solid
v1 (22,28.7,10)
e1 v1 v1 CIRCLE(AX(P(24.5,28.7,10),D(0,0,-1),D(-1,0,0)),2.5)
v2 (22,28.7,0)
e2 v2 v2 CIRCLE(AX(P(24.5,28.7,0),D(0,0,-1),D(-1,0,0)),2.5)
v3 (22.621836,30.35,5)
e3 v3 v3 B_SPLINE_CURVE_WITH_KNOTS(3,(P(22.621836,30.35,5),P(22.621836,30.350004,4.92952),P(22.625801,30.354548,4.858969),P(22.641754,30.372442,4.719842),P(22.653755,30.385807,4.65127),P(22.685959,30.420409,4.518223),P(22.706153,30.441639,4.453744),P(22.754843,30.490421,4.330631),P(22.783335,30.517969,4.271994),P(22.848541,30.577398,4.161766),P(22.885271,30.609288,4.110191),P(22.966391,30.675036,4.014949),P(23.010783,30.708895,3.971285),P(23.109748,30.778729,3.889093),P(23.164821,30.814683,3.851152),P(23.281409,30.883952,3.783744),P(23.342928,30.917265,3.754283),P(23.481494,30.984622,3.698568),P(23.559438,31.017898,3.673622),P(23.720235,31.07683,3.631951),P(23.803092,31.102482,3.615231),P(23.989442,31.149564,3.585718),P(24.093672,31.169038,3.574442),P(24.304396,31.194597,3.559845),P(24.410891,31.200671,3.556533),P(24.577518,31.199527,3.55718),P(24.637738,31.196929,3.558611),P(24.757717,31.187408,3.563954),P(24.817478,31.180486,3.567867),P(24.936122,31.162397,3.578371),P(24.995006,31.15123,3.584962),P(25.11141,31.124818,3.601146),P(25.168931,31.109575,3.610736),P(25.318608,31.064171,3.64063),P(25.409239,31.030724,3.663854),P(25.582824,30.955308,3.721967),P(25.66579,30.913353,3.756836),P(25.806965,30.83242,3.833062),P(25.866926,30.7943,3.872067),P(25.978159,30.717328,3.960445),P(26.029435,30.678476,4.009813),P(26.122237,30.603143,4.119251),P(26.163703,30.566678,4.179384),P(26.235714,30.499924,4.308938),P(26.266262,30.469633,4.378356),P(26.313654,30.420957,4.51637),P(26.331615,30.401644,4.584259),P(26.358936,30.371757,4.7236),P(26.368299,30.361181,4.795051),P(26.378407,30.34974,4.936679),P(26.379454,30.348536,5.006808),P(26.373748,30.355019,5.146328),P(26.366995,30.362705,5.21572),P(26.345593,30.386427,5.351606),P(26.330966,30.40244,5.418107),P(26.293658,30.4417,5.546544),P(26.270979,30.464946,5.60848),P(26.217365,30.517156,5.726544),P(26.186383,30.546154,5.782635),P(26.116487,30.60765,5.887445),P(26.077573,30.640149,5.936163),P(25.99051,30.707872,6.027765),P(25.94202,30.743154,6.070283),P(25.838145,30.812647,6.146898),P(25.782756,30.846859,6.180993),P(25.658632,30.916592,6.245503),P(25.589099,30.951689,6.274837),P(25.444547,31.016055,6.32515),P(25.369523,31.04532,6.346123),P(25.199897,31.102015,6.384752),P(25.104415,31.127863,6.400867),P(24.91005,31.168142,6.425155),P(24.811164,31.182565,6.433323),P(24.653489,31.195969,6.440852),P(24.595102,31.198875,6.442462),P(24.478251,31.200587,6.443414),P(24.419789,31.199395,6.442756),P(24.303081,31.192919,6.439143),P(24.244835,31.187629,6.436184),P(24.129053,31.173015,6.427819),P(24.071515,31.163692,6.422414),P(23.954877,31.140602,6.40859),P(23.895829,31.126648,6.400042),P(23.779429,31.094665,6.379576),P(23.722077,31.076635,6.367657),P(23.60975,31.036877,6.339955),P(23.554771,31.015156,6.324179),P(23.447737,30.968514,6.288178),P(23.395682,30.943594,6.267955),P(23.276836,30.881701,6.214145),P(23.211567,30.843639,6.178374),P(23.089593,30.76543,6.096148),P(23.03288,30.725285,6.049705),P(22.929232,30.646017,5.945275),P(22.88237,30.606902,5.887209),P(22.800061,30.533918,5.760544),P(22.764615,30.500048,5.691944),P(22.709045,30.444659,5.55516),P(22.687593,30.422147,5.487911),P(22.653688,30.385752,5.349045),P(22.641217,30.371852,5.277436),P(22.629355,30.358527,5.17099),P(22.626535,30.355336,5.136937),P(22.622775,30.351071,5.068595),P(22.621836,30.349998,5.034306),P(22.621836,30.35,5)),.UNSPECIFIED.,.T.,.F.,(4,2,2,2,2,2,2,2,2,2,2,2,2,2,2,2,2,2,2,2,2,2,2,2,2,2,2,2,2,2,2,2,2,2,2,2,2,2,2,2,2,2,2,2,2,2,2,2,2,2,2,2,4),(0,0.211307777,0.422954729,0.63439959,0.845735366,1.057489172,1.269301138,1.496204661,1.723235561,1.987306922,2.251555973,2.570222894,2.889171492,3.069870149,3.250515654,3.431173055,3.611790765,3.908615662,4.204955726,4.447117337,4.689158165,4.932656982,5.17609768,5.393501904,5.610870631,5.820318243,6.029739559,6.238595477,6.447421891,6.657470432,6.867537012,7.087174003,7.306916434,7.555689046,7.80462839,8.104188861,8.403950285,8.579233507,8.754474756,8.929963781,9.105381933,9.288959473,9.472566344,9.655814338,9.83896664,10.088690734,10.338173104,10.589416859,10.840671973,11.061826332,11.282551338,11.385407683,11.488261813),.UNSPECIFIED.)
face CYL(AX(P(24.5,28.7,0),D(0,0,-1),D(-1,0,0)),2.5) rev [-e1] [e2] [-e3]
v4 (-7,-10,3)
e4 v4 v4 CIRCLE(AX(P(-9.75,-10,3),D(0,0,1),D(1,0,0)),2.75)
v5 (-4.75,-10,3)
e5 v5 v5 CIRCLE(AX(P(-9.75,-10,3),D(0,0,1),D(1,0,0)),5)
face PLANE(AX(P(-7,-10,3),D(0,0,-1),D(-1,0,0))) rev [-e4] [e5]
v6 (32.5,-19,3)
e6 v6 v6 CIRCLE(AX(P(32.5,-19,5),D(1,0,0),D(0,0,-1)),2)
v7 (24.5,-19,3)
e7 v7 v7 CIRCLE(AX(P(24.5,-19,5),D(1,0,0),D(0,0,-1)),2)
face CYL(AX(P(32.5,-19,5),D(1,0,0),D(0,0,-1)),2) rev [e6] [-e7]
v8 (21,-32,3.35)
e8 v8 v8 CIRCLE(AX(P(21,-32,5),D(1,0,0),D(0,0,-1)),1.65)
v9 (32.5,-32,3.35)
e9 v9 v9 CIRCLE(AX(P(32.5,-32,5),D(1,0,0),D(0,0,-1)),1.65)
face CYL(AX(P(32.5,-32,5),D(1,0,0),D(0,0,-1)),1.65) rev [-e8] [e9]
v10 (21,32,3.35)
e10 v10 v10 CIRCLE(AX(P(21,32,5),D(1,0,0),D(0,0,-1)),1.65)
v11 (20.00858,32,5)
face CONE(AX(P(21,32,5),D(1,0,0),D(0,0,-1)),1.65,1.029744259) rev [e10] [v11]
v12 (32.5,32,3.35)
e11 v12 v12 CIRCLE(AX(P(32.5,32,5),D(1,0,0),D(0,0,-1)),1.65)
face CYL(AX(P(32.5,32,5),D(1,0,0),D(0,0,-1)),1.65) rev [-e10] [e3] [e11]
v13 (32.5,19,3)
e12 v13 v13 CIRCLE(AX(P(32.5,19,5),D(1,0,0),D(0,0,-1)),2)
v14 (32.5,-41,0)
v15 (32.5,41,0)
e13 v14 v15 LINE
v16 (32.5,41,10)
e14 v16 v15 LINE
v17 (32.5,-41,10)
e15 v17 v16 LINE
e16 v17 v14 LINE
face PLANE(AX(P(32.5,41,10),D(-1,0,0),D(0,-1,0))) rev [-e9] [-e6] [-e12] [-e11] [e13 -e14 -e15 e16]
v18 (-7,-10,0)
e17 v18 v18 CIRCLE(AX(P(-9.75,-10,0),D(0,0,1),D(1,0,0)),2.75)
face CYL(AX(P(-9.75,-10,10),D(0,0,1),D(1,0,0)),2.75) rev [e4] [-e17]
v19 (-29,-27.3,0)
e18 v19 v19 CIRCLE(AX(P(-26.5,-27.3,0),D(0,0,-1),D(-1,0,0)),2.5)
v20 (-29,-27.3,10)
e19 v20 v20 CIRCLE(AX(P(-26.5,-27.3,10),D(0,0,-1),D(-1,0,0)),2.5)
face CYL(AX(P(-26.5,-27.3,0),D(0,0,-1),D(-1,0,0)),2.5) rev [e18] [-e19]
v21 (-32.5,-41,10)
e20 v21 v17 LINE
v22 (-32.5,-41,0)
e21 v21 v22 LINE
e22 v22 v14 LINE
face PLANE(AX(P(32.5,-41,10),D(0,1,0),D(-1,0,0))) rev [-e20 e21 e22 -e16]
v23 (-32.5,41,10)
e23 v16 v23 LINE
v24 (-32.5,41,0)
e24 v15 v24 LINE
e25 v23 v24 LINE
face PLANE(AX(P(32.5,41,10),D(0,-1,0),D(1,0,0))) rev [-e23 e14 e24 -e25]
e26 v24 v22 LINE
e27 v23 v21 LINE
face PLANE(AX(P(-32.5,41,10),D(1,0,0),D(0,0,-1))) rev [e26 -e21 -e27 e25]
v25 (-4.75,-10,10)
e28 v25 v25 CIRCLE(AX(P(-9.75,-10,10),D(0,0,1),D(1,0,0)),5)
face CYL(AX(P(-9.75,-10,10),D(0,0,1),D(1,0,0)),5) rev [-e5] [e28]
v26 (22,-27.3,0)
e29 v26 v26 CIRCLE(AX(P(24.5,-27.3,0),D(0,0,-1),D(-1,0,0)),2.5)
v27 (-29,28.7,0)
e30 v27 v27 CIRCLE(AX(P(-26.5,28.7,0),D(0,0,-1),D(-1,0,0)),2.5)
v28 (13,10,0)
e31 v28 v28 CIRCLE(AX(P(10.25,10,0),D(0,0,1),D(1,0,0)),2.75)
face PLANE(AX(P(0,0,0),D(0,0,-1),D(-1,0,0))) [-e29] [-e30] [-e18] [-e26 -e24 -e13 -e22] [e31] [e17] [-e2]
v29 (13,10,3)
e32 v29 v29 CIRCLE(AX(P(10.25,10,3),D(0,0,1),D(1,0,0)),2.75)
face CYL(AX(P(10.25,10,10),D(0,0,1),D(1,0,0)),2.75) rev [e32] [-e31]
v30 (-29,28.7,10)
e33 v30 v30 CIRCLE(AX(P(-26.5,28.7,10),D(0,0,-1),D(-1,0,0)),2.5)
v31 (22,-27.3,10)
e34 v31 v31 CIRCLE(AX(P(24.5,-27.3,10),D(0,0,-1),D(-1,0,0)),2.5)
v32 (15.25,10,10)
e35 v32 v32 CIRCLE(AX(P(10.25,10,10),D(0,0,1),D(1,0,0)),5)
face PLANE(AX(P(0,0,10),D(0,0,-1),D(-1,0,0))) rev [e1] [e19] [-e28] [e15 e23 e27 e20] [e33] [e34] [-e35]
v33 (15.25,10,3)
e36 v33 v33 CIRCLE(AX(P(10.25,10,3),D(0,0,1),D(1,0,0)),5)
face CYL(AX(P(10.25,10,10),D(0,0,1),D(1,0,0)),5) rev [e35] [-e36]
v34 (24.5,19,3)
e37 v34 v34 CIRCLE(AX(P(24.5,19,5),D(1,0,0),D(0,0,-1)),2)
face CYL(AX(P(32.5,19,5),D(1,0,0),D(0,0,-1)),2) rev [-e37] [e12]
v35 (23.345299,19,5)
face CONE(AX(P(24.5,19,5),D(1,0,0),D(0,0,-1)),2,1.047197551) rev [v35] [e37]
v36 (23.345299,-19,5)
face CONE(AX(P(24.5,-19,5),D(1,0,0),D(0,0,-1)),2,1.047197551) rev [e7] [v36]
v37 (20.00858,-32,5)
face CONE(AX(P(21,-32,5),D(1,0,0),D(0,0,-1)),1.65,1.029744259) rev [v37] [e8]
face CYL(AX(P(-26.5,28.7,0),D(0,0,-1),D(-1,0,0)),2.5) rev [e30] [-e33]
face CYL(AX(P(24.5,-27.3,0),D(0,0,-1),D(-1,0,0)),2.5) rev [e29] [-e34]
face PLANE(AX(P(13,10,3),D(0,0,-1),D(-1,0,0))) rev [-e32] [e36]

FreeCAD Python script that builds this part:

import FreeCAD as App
import Part
import Sketcher

V = App.Vector
Q = App.Units.Quantity


def add_polygon(sketch, points):
    """Adds a closed chain of lines whose ends are joined by coincident constraints."""
    first, n = sketch.GeometryCount, len(points)
    for a, b in zip(points, points[1:] + points[:1]):
        sketch.addGeometry(Part.LineSegment(App.Vector(*a, 0), App.Vector(*b, 0)), False)
    for i in range(n):
        sketch.addConstraint(Sketcher.Constraint("Coincident", first + i, 2, first + (i + 1) % n, 1))

doc = App.newDocument("Part")
body = doc.addObject("PartDesign::Body", "Body")

sketch1 = doc.addObject("Sketcher::SketchObject", "Sketch")
body.addObject(sketch1)
sketch1.AttachmentSupport = (doc.XY_Plane, [""])
sketch1.MapMode = "FlatFace"
add_polygon(sketch1, [(-32, 41), (-32, -41), (32, -41), (32, 41)])
sketch1.addConstraint(Sketcher.Constraint("Vertical", 0))
sketch1.addConstraint(Sketcher.Constraint("Horizontal", 1))
sketch1.addConstraint(Sketcher.Constraint("Vertical", 2))
sketch1.addConstraint(Sketcher.Constraint("Horizontal", 3))
sketch1.addConstraint(Sketcher.Constraint("Symmetric", 0, 2, 2, 2, -1, 1))
sketch1.addConstraint(Sketcher.Constraint("DistanceX", 1, 1, 1, 2, Q("65 mm")))
sketch1.addConstraint(Sketcher.Constraint("DistanceY", 0, 2, 0, 1, Q("82 mm")))
pad1 = doc.addObject("PartDesign::Pad", "Pad")
body.addObject(pad1)
pad1.Profile = sketch1
pad1.Length = 10

sketch2 = doc.addObject("Sketcher::SketchObject", "Sketch001")
body.addObject(sketch2)
sketch2.AttachmentSupport = (doc.XY_Plane, [""])
sketch2.MapMode = "FlatFace"
sketch2.AttachmentOffset = App.Placement(V(0, 0, 10), App.Rotation())
sketch2.addGeometry(Part.Circle(V(10.2, 10, 0), V(0, 0, 1), 2.8), False)
sketch2.addGeometry(Part.Circle(V(-9.8, -10, 0), V(0, 0, 1), 2.8), False)
sketch2.addConstraint(Sketcher.Constraint("Equal", 0, 1))
sketch2.addConstraint(Sketcher.Constraint("Diameter", 0, Q("5.5 mm")))
sketch2.addConstraint(Sketcher.Constraint("DistanceY", -1, 1, 0, 3, Q("10 mm")))
sketch2.addConstraint(Sketcher.Constraint("DistanceY", 1, 3, -1, 1, Q("10 mm")))
sketch2.addConstraint(Sketcher.Constraint("DistanceX", 1, 3, 0, 3, Q("20 mm")))
sketch2.addConstraint(Sketcher.Constraint("DistanceX", -1, 1, 0, 3, Q("10.25 mm")))
doc.recompute()
hole = doc.addObject("PartDesign::Hole", "Hole")
body.addObject(hole)
hole.Profile = sketch2
hole.ThreadType = "None"
hole.Diameter = 5.5
hole.DepthType = "ThroughAll"
hole.HoleCutType = "Counterbore"
hole.HoleCutDiameter = 10
hole.HoleCutDepth = 7

sketch3 = doc.addObject("Sketcher::SketchObject", "Sketch002")
body.addObject(sketch3)
sketch3.AttachmentSupport = (doc.YZ_Plane, [""])
sketch3.MapMode = "FlatFace"
sketch3.AttachmentOffset = App.Placement(V(0, 0, 32.5), App.Rotation())
sketch3.addGeometry(Part.Circle(V(-32, 5, 0), V(0, 0, 1), 1.6), False)
sketch3.addGeometry(Part.Circle(V(32, 5, 0), V(0, 0, 1), 1.6), False)
sketch3.addConstraint(Sketcher.Constraint("Equal", 0, 1))
sketch3.addConstraint(Sketcher.Constraint("Symmetric", 0, 3, 1, 3, -2))
sketch3.addConstraint(Sketcher.Constraint("Diameter", 0, Q("3.3 mm")))
sketch3.addConstraint(Sketcher.Constraint("DistanceX", 0, 3, -1, 1, Q("32 mm")))
sketch3.addConstraint(Sketcher.Constraint("DistanceY", -1, 1, 0, 3, Q("5 mm")))
doc.recompute()
hole2 = doc.addObject("PartDesign::Hole", "Hole001")
body.addObject(hole2)
hole2.Profile = sketch3
hole2.ThreadType = "None"
hole2.Diameter = 3.3
hole2.DepthType = "Dimension"
hole2.Depth = 11.5
hole2.DrillPoint = "Angled"
hole2.DrillPointAngle = 118

sketch4 = doc.addObject("Sketcher::SketchObject", "Sketch003")
body.addObject(sketch4)
sketch4.AttachmentSupport = (doc.YZ_Plane, [""])
sketch4.MapMode = "FlatFace"
sketch4.AttachmentOffset = App.Placement(V(0, 0, 32.5), App.Rotation())
sketch4.addGeometry(Part.Circle(V(-19, 5, 0), V(0, 0, 1), 2), False)
sketch4.addGeometry(Part.Circle(V(19, 5, 0), V(0, 0, 1), 2), False)
sketch4.addConstraint(Sketcher.Constraint("Equal", 0, 1))
sketch4.addConstraint(Sketcher.Constraint("Symmetric", 0, 3, 1, 3, -2))
sketch4.addConstraint(Sketcher.Constraint("Diameter", 0, Q("4 mm")))
sketch4.addConstraint(Sketcher.Constraint("DistanceX", 0, 3, -1, 1, Q("19 mm")))
sketch4.addConstraint(Sketcher.Constraint("DistanceY", -1, 1, 0, 3, Q("5 mm")))
doc.recompute()
hole3 = doc.addObject("PartDesign::Hole", "Hole002")
body.addObject(hole3)
hole3.Profile = sketch4
hole3.ThreadType = "None"
hole3.Diameter = 4
hole3.DepthType = "Dimension"
hole3.Depth = 8
hole3.DrillPoint = "Angled"
hole3.DrillPointAngle = 120

sketch5 = doc.addObject("Sketcher::SketchObject", "Sketch004")
body.addObject(sketch5)
sketch5.AttachmentSupport = (doc.XY_Plane, [""])
sketch5.MapMode = "FlatFace"
sketch5.addGeometry(Part.Circle(V(-26.5, 28.7, 0), V(0, 0, 1), 2.5), False)
sketch5.addGeometry(Part.Circle(V(24.5, 28.7, 0), V(0, 0, 1), 2.5), False)
sketch5.addGeometry(Part.Circle(V(24.5, -27.3, 0), V(0, 0, 1), 2.5), False)
sketch5.addGeometry(Part.Circle(V(-26.5, -27.3, 0), V(0, 0, 1), 2.5), False)
sketch5.addConstraint(Sketcher.Constraint("Equal", 0, 1))
sketch5.addConstraint(Sketcher.Constraint("Equal", 1, 2))
sketch5.addConstraint(Sketcher.Constraint("Equal", 2, 3))
sketch5.addConstraint(Sketcher.Constraint("Horizontal", 0, 3, 1, 3))
sketch5.addConstraint(Sketcher.Constraint("Horizontal", 2, 3, 3, 3))
sketch5.addConstraint(Sketcher.Constraint("Vertical", 1, 3, 2, 3))
sketch5.addConstraint(Sketcher.Constraint("Vertical", 0, 3, 3, 3))
sketch5.addConstraint(Sketcher.Constraint("Diameter", 0, Q("5 mm")))
sketch5.addConstraint(Sketcher.Constraint("DistanceX", 0, 3, 1, 3, Q("51 mm")))
sketch5.addConstraint(Sketcher.Constraint("DistanceY", 2, 3, 1, 3, Q("56 mm")))
sketch5.addConstraint(Sketcher.Constraint("DistanceX", 0, 3, -1, 1, Q("26.5 mm")))
sketch5.addConstraint(Sketcher.Constraint("DistanceY", -1, 1, 0, 3, Q("28.7 mm")))
doc.recompute()
hole4 = doc.addObject("PartDesign::Hole", "Hole003")
body.addObject(hole4)
hole4.Profile = sketch5
hole4.ThreadType = "None"
hole4.Diameter = 5
hole4.DepthType = "ThroughAll"
hole4.Reversed = True

doc.recompute()
